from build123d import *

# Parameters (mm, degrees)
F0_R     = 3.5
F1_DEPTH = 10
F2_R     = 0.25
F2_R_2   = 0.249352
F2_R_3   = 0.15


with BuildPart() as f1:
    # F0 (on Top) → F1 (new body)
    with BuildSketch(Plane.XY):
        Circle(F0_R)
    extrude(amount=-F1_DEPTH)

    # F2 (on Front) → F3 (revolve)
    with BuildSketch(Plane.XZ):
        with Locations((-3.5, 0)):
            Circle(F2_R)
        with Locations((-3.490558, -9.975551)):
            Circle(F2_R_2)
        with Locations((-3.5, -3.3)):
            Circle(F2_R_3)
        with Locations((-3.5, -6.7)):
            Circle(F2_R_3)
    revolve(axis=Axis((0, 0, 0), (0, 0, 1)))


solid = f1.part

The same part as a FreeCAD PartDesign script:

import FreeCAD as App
import Part
import Sketcher
from FreeCAD import Vector

doc = App.newDocument("Part")
body = doc.addObject("PartDesign::Body", "Body")

sketch1 = body.newObject("Sketcher::SketchObject", "Sketch")
sketch1.AttachmentSupport = (doc.getObject("XY_Plane"), [""])
sketch1.MapMode = "FlatFace"
sketch1.addGeometry(Part.Circle(Vector(0, 0, 0), Vector(0, 0, 1), 3.5), False)
sketch1.addConstraint([
    Sketcher.Constraint("Coincident", 0, 3, -1, 1),
    Sketcher.Constraint("Diameter", 0, 7.0),
])
pad1 = body.newObject("PartDesign::Pad", "Pad")
pad1.Profile = sketch1
pad1.Length = 10
pad1.Reversed = True

sketch2 = body.newObject("Sketcher::SketchObject", "Sketch001")
sketch2.AttachmentSupport = (doc.getObject("XZ_Plane"), [""])
sketch2.MapMode = "FlatFace"
sketch2.addGeometry([
    Part.Circle(Vector(-3.5, 0, 0), Vector(0, 0, 1), 0.25),
    Part.Circle(Vector(-3.490558, -9.975551, 0), Vector(0, 0, 1), 0.249352),
    Part.Circle(Vector(-3.5, -3.3, 0), Vector(0, 0, 1), 0.15),
    Part.Circle(Vector(-3.5, -6.7, 0), Vector(0, 0, 1), 0.15),
], False)
sketch2.addConstraint([
    Sketcher.Constraint("Equal", 2, 3),
    Sketcher.Constraint("PointOnObject", 0, 3, -1),
    Sketcher.Constraint("Vertical", 0, 3, 2, 3),
    Sketcher.Constraint("Vertical", 2, 3, 3, 3),
    Sketcher.Constraint("Diameter", 0, 0.5),
    Sketcher.Constraint("Diameter", 2, 0.3),
    Sketcher.Constraint("DistanceX", 0, 3, -1, 1, 3.5),
    Sketcher.Constraint("DistanceY", 2, 3, -1, 1, 3.3),
    Sketcher.Constraint("DistanceY", 3, 3, -1, 1, 6.7),
    Sketcher.Constraint("Diameter", 1, 0.498704),
    Sketcher.Constraint("DistanceX", 1, 3, -1, 1, 3.490558),
    Sketcher.Constraint("DistanceY", 1, 3, -1, 1, 9.975551),
])
revolution = body.newObject("PartDesign::Revolution", "Revolution")
revolution.Profile = sketch2
revolution.ReferenceAxis = (sketch2, ["V_Axis"])
revolution.Angle = 360

doc.recompute()
